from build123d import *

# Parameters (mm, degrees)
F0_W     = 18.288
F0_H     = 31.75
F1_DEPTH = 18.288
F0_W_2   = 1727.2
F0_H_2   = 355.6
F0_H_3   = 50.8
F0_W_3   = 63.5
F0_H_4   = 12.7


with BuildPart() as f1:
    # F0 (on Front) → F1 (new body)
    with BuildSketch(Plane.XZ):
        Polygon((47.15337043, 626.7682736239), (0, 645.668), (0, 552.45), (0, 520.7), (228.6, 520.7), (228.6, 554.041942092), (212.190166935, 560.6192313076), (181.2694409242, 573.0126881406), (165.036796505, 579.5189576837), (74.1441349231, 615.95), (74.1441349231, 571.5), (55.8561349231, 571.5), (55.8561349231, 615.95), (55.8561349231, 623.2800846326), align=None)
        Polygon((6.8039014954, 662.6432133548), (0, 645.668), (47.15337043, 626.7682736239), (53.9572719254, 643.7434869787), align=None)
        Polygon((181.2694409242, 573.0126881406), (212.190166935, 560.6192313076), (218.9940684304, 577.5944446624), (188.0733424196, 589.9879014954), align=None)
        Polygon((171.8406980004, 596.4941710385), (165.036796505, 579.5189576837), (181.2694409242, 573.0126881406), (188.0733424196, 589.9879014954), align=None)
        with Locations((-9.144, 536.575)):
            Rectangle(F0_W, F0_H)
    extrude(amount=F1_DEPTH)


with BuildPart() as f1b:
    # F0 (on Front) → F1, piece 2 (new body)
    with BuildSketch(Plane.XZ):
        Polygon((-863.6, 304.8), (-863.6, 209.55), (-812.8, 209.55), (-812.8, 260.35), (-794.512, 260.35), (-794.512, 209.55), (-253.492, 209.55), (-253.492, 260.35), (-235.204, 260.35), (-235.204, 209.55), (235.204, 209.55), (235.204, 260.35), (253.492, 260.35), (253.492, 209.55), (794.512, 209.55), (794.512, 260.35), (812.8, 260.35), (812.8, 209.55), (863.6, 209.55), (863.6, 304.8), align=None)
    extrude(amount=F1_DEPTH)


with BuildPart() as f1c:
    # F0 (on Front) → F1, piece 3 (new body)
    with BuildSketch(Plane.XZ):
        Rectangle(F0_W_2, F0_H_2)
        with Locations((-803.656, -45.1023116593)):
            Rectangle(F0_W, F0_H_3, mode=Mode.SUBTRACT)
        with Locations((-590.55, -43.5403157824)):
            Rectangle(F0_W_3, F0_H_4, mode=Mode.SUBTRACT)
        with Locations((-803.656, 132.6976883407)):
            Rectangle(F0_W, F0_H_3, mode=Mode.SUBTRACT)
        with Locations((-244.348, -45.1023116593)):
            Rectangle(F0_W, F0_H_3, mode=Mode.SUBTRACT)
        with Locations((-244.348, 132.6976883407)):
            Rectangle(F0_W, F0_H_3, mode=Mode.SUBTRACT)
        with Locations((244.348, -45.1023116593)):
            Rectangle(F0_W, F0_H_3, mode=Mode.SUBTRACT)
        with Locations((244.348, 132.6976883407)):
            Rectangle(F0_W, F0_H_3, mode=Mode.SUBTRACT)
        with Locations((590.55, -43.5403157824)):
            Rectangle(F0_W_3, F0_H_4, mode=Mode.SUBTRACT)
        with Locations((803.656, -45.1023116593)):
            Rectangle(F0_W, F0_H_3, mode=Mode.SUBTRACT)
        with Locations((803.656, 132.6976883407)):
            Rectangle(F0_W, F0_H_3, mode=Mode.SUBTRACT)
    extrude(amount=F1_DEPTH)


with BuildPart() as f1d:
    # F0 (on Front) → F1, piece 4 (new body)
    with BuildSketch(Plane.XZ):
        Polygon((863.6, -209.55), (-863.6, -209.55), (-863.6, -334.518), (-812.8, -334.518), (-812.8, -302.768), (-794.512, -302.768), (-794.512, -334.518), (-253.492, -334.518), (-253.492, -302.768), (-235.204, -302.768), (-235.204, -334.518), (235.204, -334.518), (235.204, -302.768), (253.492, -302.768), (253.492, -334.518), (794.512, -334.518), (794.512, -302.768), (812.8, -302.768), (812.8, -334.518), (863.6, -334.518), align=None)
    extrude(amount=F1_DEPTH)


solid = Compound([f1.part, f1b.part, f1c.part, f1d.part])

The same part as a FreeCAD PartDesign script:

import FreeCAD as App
import Part
import Sketcher
Q = App.Units.Quantity


def add_polygon(sketch, points):
    """Adds a closed chain of lines whose ends are joined by coincident constraints."""
    first, n = sketch.GeometryCount, len(points)
    for a, b in zip(points, points[1:] + points[:1]):
        sketch.addGeometry(Part.LineSegment(App.Vector(*a, 0), App.Vector(*b, 0)), False)
    for i in range(n):
        sketch.addConstraint(Sketcher.Constraint("Coincident", first + i, 2, first + (i + 1) % n, 1))

doc = App.newDocument("Part")
params = doc.addObject("Spreadsheet::Sheet", "Params")
for row, (alias, value) in enumerate([
    ("sketch1_length", "2 in"),
    ("sketch1_width", "0.72 in"),
    ("sketch1_height", "3.67 in"),
    ("sketch1_height2", "1.25 in"),
    ("sketch1_height3", "1.75 in"),
    ("pad1_length", "0.72 in"),
    ("sketch2_width", "2 in"),
    ("sketch2_width2", "68 in"),
    ("sketch2_width3", "21.3 in"),
    ("sketch2_width4", "0.72 in"),
    ("sketch2_height", "3.75 in"),
    ("pad2_length", "0.72 in"),
    ("sketch3_width", "68 in"),
    ("sketch3_height", "14 in"),
    ("sketch3_height2", "2 in"),
    ("sketch3_width2", "2.5 in"),
    ("sketch3_height3", "0.5 in"),
    ("pad3_length", "0.72 in"),
    ("sketch4_width", "68 in"),
    ("sketch4_width2", "2 in"),
    ("sketch4_width3", "21.3 in"),
    ("sketch4_width4", "0.72 in"),
    ("sketch4_height", "4.92 in"),
    ("pad4_length", "0.72 in"),
], start=1):
    params.set(f"A{row}", alias)
    params.set(f"B{row}", "=" + value)
    params.setAlias(f"B{row}", alias)

body = doc.addObject("PartDesign::Body", "Body")

# Sketch on XZ plane
sketch1 = body.newObject("Sketcher::SketchObject", "Sketch")
sketch1.AttachmentSupport = (doc.getObject("XZ_Plane"), [""])
sketch1.MapMode = "FlatFace"
add_polygon(sketch1, [(0, 646), (0, 552), (-18, 552), (-18, 521), (229, 521), (229, 554), (212, 561), (219, 578), (172, 596), (165, 580), (74, 616), (74, 572), (56, 572), (56, 623), (47, 627), (54, 644), (7, 663)])  # lines 0-16
sketch1.addConstraint(Sketcher.Constraint("Vertical", 0))
sketch1.addConstraint(Sketcher.Constraint("Horizontal", 1))
sketch1.addConstraint(Sketcher.Constraint("Vertical", 2))
sketch1.addConstraint(Sketcher.Constraint("Horizontal", 3))
sketch1.addConstraint(Sketcher.Constraint("Vertical", 4))
sketch1.addConstraint(Sketcher.Constraint("Vertical", 10))
sketch1.addConstraint(Sketcher.Constraint("Horizontal", 11))
sketch1.addConstraint(Sketcher.Constraint("Vertical", 12))
sketch1.addConstraint(Sketcher.Constraint("PointOnObject", 0, 2, -2))
sketch1.addConstraint(Sketcher.Constraint("Perpendicular", 5, 6))
sketch1.addConstraint(Sketcher.Constraint("Perpendicular", 6, 7))
sketch1.addConstraint(Sketcher.Constraint("Perpendicular", 7, 8))
sketch1.addConstraint(Sketcher.Constraint("Perpendicular", 8, 9))
sketch1.addConstraint(Sketcher.Constraint("Parallel", 9, 13))
sketch1.addConstraint(Sketcher.Constraint("Perpendicular", 13, 14))
sketch1.addConstraint(Sketcher.Constraint("Perpendicular", 14, 15))
sketch1.addConstraint(Sketcher.Constraint("Perpendicular", 15, 16))
sketch1.addConstraint(Sketcher.Constraint("Equal", 1, 11))
sketch1.addConstraint(Sketcher.Constraint("Equal", 6, 8))
sketch1.addConstraint(Sketcher.Constraint("Equal", 8, 14))
sketch1.addConstraint(Sketcher.Constraint("Equal", 7, 15))
sketch1.addConstraint(Sketcher.Constraint("Equal", 14, 16))
sketch1.addConstraint(Sketcher.Constraint("Distance", 7, Q("2 in")))
sketch1.addConstraint(Sketcher.Constraint("DistanceX", -1, 1, 3, 2, Q("9 in")))
sketch1.addConstraint(Sketcher.Constraint("DistanceY", 2, 2, 11, 2, Q("2 in")))
sketch1.addConstraint(Sketcher.Constraint("DistanceX", 1, 2, 1, 1, Q("0.72 in")))
sketch1.addConstraint(Sketcher.Constraint("DistanceY", 0, 2, 0, 1, Q("3.67 in")))
sketch1.addConstraint(Sketcher.Constraint("DistanceY", 2, 2, 2, 1, Q("1.25 in")))
sketch1.addConstraint(Sketcher.Constraint("DistanceY", 10, 2, 10, 1, Q("1.75 in")))
sketch1.addConstraint(Sketcher.Constraint("DistanceY", -1, 1, 2, 2, Q("20.5 in")))
sketch1.addConstraint(Sketcher.Constraint("Distance", 6, Q("0.72 in")))
sketch1.addConstraint(Sketcher.Constraint("DistanceX", -1, 1, 7, 2, Q("171.840698 mm")))
sketch1.addConstraint(Sketcher.Constraint("DistanceX", -1, 1, 15, 2, Q("6.803901 mm")))
sketch1.addConstraint(Sketcher.Constraint("Distance", 9, Q("97.921891 mm")))
sketch1.setExpression("Constraints[39]", "Params.sketch1_length")
sketch1.setExpression("Constraints[42]", "Params.sketch1_width")
sketch1.setExpression("Constraints[43]", "Params.sketch1_height")
sketch1.setExpression("Constraints[44]", "Params.sketch1_height2")
sketch1.setExpression("Constraints[45]", "Params.sketch1_height3")
pad1 = body.newObject("PartDesign::Pad", "Pad")
pad1.Profile = sketch1
pad1.setExpression("Length", "Params.pad1_length")
body2 = doc.addObject("PartDesign::Body", "Body001")

# Sketch on XZ plane
sketch2 = body2.newObject("Sketcher::SketchObject", "Sketch001")
sketch2.AttachmentSupport = (doc.getObject("XZ_Plane001"), [""])
sketch2.MapMode = "FlatFace"
add_polygon(sketch2, [(-864, 305), (-864, 210), (-813, 210), (-813, 260), (-795, 260), (-795, 210), (-253, 210), (-253, 260), (-235, 260), (-235, 210), (235, 210), (235, 260), (253, 260), (253, 210), (795, 210), (795, 260), (813, 260), (813, 210), (864, 210), (864, 305)])  # lines 0-19
sketch2.addConstraint(Sketcher.Constraint("Vertical", 0))
sketch2.addConstraint(Sketcher.Constraint("Horizontal", 1))
sketch2.addConstraint(Sketcher.Constraint("Vertical", 2))
sketch2.addConstraint(Sketcher.Constraint("Horizontal", 3))
sketch2.addConstraint(Sketcher.Constraint("Vertical", 4))
sketch2.addConstraint(Sketcher.Constraint("Horizontal", 5))
sketch2.addConstraint(Sketcher.Constraint("Vertical", 6))
sketch2.addConstraint(Sketcher.Constraint("Horizontal", 7))
sketch2.addConstraint(Sketcher.Constraint("Vertical", 8))
sketch2.addConstraint(Sketcher.Constraint("Horizontal", 9))
sketch2.addConstraint(Sketcher.Constraint("Vertical", 10))
sketch2.addConstraint(Sketcher.Constraint("Horizontal", 11))
sketch2.addConstraint(Sketcher.Constraint("Vertical", 12))
sketch2.addConstraint(Sketcher.Constraint("Horizontal", 13))
sketch2.addConstraint(Sketcher.Constraint("Vertical", 14))
sketch2.addConstraint(Sketcher.Constraint("Horizontal", 15))
sketch2.addConstraint(Sketcher.Constraint("Vertical", 16))
sketch2.addConstraint(Sketcher.Constraint("Horizontal", 17))
sketch2.addConstraint(Sketcher.Constraint("Vertical", 18))
sketch2.addConstraint(Sketcher.Constraint("Horizontal", 19))
sketch2.addConstraint(Sketcher.Constraint("Symmetric", 7, 2, 10, 2, -2))
sketch2.addConstraint(Sketcher.Constraint("Symmetric", 5, 2, 12, 2, -2))
sketch2.addConstraint(Sketcher.Constraint("Symmetric", 3, 2, 14, 2, -2))
sketch2.addConstraint(Sketcher.Constraint("Symmetric", 1, 2, 16, 2, -2))
sketch2.addConstraint(Sketcher.Constraint("Horizontal", 1, 2, 4, 2))
sketch2.addConstraint(Sketcher.Constraint("Horizontal", 3, 2, 6, 2))
sketch2.addConstraint(Sketcher.Constraint("Horizontal", 5, 2, 8, 2))
sketch2.addConstraint(Sketcher.Constraint("Equal", 3, 7))
sketch2.addConstraint(Sketcher.Constraint("Equal", 1, 17))
sketch2.addConstraint(Sketcher.Constraint("Equal", 17, 2))
sketch2.addConstraint(Sketcher.Constraint("DistanceX", 1, 1, 1, 2, Q("2 in")))
sketch2.addConstraint(Sketcher.Constraint("DistanceX", 19, 2, 19, 1, Q("68 in")))
sketch2.addConstraint(Sketcher.Constraint("DistanceX", 5, 1, 5, 2, Q("21.3 in")))
sketch2.addConstraint(Sketcher.Constraint("DistanceY", -1, 1, 18, 2, Q("12 in")))
sketch2.addConstraint(Sketcher.Constraint("DistanceX", 3, 1, 3, 2, Q("0.72 in")))
sketch2.addConstraint(Sketcher.Constraint("DistanceY", 0, 2, 0, 1, Q("3.75 in")))
sketch2.setExpression("Constraints[50]", "Params.sketch2_width")
sketch2.setExpression("Constraints[51]", "Params.sketch2_width2")
sketch2.setExpression("Constraints[52]", "Params.sketch2_width3")
sketch2.setExpression("Constraints[54]", "Params.sketch2_width4")
sketch2.setExpression("Constraints[55]", "Params.sketch2_height")
pad2 = body2.newObject("PartDesign::Pad", "Pad001")
pad2.Profile = sketch2
pad2.setExpression("Length", "Params.pad2_length")
body3 = doc.addObject("PartDesign::Body", "Body002")

# Sketch on XZ plane
sketch3 = body3.newObject("Sketcher::SketchObject", "Sketch002")
sketch3.AttachmentSupport = (doc.getObject("XZ_Plane002"), [""])
sketch3.MapMode = "FlatFace"
add_polygon(sketch3, [(-864, 178), (-864, -178), (864, -178), (864, 178)])  # lines 0-3
add_polygon(sketch3, [(-795, -71), (-813, -71), (-813, -20), (-795, -20)])  # lines 4-7
add_polygon(sketch3, [(-559, -50), (-622, -50), (-622, -37), (-559, -37)])  # lines 8-11
add_polygon(sketch3, [(-235, -71), (-253, -71), (-253, -20), (-235, -20)])  # lines 12-15
add_polygon(sketch3, [(253, -71), (235, -71), (235, -20), (253, -20)])  # lines 16-19
add_polygon(sketch3, [(622, -50), (559, -50), (559, -37), (622, -37)])  # lines 20-23
add_polygon(sketch3, [(813, -71), (795, -71), (795, -20), (813, -20)])  # lines 24-27
add_polygon(sketch3, [(-795, 107), (-813, 107), (-813, 158), (-795, 158)])  # lines 28-31
add_polygon(sketch3, [(-235, 107), (-253, 107), (-253, 158), (-235, 158)])  # lines 32-35
add_polygon(sketch3, [(253, 107), (235, 107), (235, 158), (253, 158)])  # lines 36-39
add_polygon(sketch3, [(813, 107), (795, 107), (795, 158), (813, 158)])  # lines 40-43
sketch3.addConstraint(Sketcher.Constraint("Vertical", 0))
sketch3.addConstraint(Sketcher.Constraint("Horizontal", 1))
sketch3.addConstraint(Sketcher.Constraint("Vertical", 2))
sketch3.addConstraint(Sketcher.Constraint("Horizontal", 3))
sketch3.addConstraint(Sketcher.Constraint("Horizontal", 4))
sketch3.addConstraint(Sketcher.Constraint("Vertical", 5))
sketch3.addConstraint(Sketcher.Constraint("Horizontal", 6))
sketch3.addConstraint(Sketcher.Constraint("Vertical", 7))
sketch3.addConstraint(Sketcher.Constraint("Horizontal", 8))
sketch3.addConstraint(Sketcher.Constraint("Vertical", 9))
sketch3.addConstraint(Sketcher.Constraint("Horizontal", 10))
sketch3.addConstraint(Sketcher.Constraint("Vertical", 11))
sketch3.addConstraint(Sketcher.Constraint("Horizontal", 12))
sketch3.addConstraint(Sketcher.Constraint("Vertical", 13))
sketch3.addConstraint(Sketcher.Constraint("Horizontal", 14))
sketch3.addConstraint(Sketcher.Constraint("Vertical", 15))
sketch3.addConstraint(Sketcher.Constraint("Horizontal", 16))
sketch3.addConstraint(Sketcher.Constraint("Vertical", 17))
sketch3.addConstraint(Sketcher.Constraint("Horizontal", 18))
sketch3.addConstraint(Sketcher.Constraint("Vertical", 19))
sketch3.addConstraint(Sketcher.Constraint("Horizontal", 20))
sketch3.addConstraint(Sketcher.Constraint("Vertical", 21))
sketch3.addConstraint(Sketcher.Constraint("Horizontal", 22))
sketch3.addConstraint(Sketcher.Constraint("Vertical", 23))
sketch3.addConstraint(Sketcher.Constraint("Horizontal", 24))
sketch3.addConstraint(Sketcher.Constraint("Vertical", 25))
sketch3.addConstraint(Sketcher.Constraint("Horizontal", 26))
sketch3.addConstraint(Sketcher.Constraint("Vertical", 27))
sketch3.addConstraint(Sketcher.Constraint("Horizontal", 28))
sketch3.addConstraint(Sketcher.Constraint("Vertical", 29))
sketch3.addConstraint(Sketcher.Constraint("Horizontal", 30))
sketch3.addConstraint(Sketcher.Constraint("Vertical", 31))
sketch3.addConstraint(Sketcher.Constraint("Horizontal", 32))
sketch3.addConstraint(Sketcher.Constraint("Vertical", 33))
sketch3.addConstraint(Sketcher.Constraint("Horizontal", 34))
sketch3.addConstraint(Sketcher.Constraint("Vertical", 35))
sketch3.addConstraint(Sketcher.Constraint("Horizontal", 36))
sketch3.addConstraint(Sketcher.Constraint("Vertical", 37))
sketch3.addConstraint(Sketcher.Constraint("Horizontal", 38))
sketch3.addConstraint(Sketcher.Constraint("Vertical", 39))
sketch3.addConstraint(Sketcher.Constraint("Horizontal", 40))
sketch3.addConstraint(Sketcher.Constraint("Vertical", 41))
sketch3.addConstraint(Sketcher.Constraint("Horizontal", 42))
sketch3.addConstraint(Sketcher.Constraint("Vertical", 43))
sketch3.addConstraint(Sketcher.Constraint("Symmetric", 0, 2, 2, 2, -1, 1))
sketch3.addConstraint(Sketcher.Constraint("Symmetric", 15, 2, 16, 2, -2))
sketch3.addConstraint(Sketcher.Constraint("Symmetric", 13, 2, 18, 2, -2))
sketch3.addConstraint(Sketcher.Constraint("Symmetric", 11, 2, 20, 2, -2))
sketch3.addConstraint(Sketcher.Constraint("Symmetric", 9, 2, 22, 2, -2))
sketch3.addConstraint(Sketcher.Constraint("Symmetric", 7, 2, 24, 2, -2))
sketch3.addConstraint(Sketcher.Constraint("Symmetric", 5, 2, 26, 2, -2))
sketch3.addConstraint(Sketcher.Constraint("Symmetric", 35, 2, 36, 2, -2))
sketch3.addConstraint(Sketcher.Constraint("Symmetric", 33, 2, 38, 2, -2))
sketch3.addConstraint(Sketcher.Constraint("Symmetric", 31, 2, 40, 2, -2))
sketch3.addConstraint(Sketcher.Constraint("Symmetric", 29, 2, 42, 2, -2))
sketch3.addConstraint(Sketcher.Constraint("Horizontal", 7, 2, 12, 2))
sketch3.addConstraint(Sketcher.Constraint("Horizontal", 6, 2, 13, 2))
sketch3.addConstraint(Sketcher.Constraint("Horizontal", 31, 2, 32, 2))
sketch3.addConstraint(Sketcher.Constraint("Horizontal", 30, 2, 33, 2))
sketch3.addConstraint(Sketcher.Constraint("Vertical", 5, 2, 28, 2))
sketch3.addConstraint(Sketcher.Constraint("Vertical", 7, 2, 30, 2))
sketch3.addConstraint(Sketcher.Constraint("Vertical", 13, 2, 32, 2))
sketch3.addConstraint(Sketcher.Constraint("Vertical", 15, 2, 34, 2))
sketch3.addConstraint(Sketcher.Constraint("Equal", 6, 12))
sketch3.addConstraint(Sketcher.Constraint("Equal", 27, 29))
sketch3.addConstraint(Sketcher.Constraint("DistanceX", 1, 1, 1, 2, Q("68 in")))
sketch3.addConstraint(Sketcher.Constraint("DistanceY", 0, 2, 0, 1, Q("14 in")))
sketch3.addConstraint(Sketcher.Constraint("DistanceY", 5, 1, 5, 2, Q("2 in")))
sketch3.addConstraint(Sketcher.Constraint("DistanceX", 8, 2, 8, 1, Q("2.5 in")))
sketch3.addConstraint(Sketcher.Constraint("DistanceY", 9, 1, 9, 2, Q("0.5 in")))
sketch3.addConstraint(Sketcher.Constraint("DistanceX", 4, 2, -1, 1, Q("32 in")))
sketch3.addConstraint(Sketcher.Constraint("DistanceX", 10, 2, -1, 1, Q("22 in")))
sketch3.addConstraint(Sketcher.Constraint("DistanceY", 5, 2, 28, 2, Q("5 in")))
sketch3.addConstraint(Sketcher.Constraint("DistanceX", 4, 2, 4, 1, Q("0.72 in")))
sketch3.addConstraint(Sketcher.Constraint("DistanceX", 7, 2, 12, 2, Q("21.3 in")))
sketch3.addConstraint(Sketcher.Constraint("DistanceY", 4, 2, -1, 1, Q("70.502312 mm")))
sketch3.addConstraint(Sketcher.Constraint("DistanceY", 8, 2, -1, 1, Q("49.890316 mm")))
sketch3.setExpression("Constraints[109]", "Params.sketch3_width")
sketch3.setExpression("Constraints[110]", "Params.sketch3_height")
sketch3.setExpression("Constraints[111]", "Params.sketch3_height2")
sketch3.setExpression("Constraints[112]", "Params.sketch3_width2")
sketch3.setExpression("Constraints[113]", "Params.sketch3_height3")
pad3 = body3.newObject("PartDesign::Pad", "Pad002")
pad3.Profile = sketch3
pad3.setExpression("Length", "Params.pad3_length")
body4 = doc.addObject("PartDesign::Body", "Body003")

# Sketch on XZ plane
sketch4 = body4.newObject("Sketcher::SketchObject", "Sketch003")
sketch4.AttachmentSupport = (doc.getObject("XZ_Plane003"), [""])
sketch4.MapMode = "FlatFace"
add_polygon(sketch4, [(864, -210), (-864, -210), (-864, -335), (-813, -335), (-813, -303), (-795, -303), (-795, -335), (-253, -335), (-253, -303), (-235, -303), (-235, -335), (235, -335), (235, -303), (253, -303), (253, -335), (795, -335), (795, -303), (813, -303), (813, -335), (864, -335)])  # lines 0-19
sketch4.addConstraint(Sketcher.Constraint("Horizontal", 0))
sketch4.addConstraint(Sketcher.Constraint("Vertical", 1))
sketch4.addConstraint(Sketcher.Constraint("Horizontal", 2))
sketch4.addConstraint(Sketcher.Constraint("Vertical", 3))
sketch4.addConstraint(Sketcher.Constraint("Horizontal", 4))
sketch4.addConstraint(Sketcher.Constraint("Vertical", 5))
sketch4.addConstraint(Sketcher.Constraint("Horizontal", 6))
sketch4.addConstraint(Sketcher.Constraint("Vertical", 7))
sketch4.addConstraint(Sketcher.Constraint("Horizontal", 8))
sketch4.addConstraint(Sketcher.Constraint("Vertical", 9))
sketch4.addConstraint(Sketcher.Constraint("Horizontal", 10))
sketch4.addConstraint(Sketcher.Constraint("Vertical", 11))
sketch4.addConstraint(Sketcher.Constraint("Horizontal", 12))
sketch4.addConstraint(Sketcher.Constraint("Vertical", 13))
sketch4.addConstraint(Sketcher.Constraint("Horizontal", 14))
sketch4.addConstraint(Sketcher.Constraint("Vertical", 15))
sketch4.addConstraint(Sketcher.Constraint("Horizontal", 16))
sketch4.addConstraint(Sketcher.Constraint("Vertical", 17))
sketch4.addConstraint(Sketcher.Constraint("Horizontal", 18))
sketch4.addConstraint(Sketcher.Constraint("Vertical", 19))
sketch4.addConstraint(Sketcher.Constraint("Symmetric", 8, 2, 11, 2, -2))
sketch4.addConstraint(Sketcher.Constraint("Symmetric", 6, 2, 13, 2, -2))
sketch4.addConstraint(Sketcher.Constraint("Symmetric", 4, 2, 15, 2, -2))
sketch4.addConstraint(Sketcher.Constraint("Symmetric", 2, 2, 17, 2, -2))
sketch4.addConstraint(Sketcher.Constraint("Horizontal", 2, 2, 5, 2))
sketch4.addConstraint(Sketcher.Constraint("Horizontal", 4, 2, 7, 2))
sketch4.addConstraint(Sketcher.Constraint("Horizontal", 6, 2, 9, 2))
sketch4.addConstraint(Sketcher.Constraint("Equal", 4, 8))
sketch4.addConstraint(Sketcher.Constraint("Equal", 2, 18))
sketch4.addConstraint(Sketcher.Constraint("DistanceX", 0, 2, 0, 1, Q("68 in")))
sketch4.addConstraint(Sketcher.Constraint("DistanceX", 2, 1, 2, 2, Q("2 in")))
sketch4.addConstraint(Sketcher.Constraint("DistanceX", 6, 1, 6, 2, Q("21.3 in")))
sketch4.addConstraint(Sketcher.Constraint("DistanceX", 4, 1, 4, 2, Q("0.72 in")))
sketch4.addConstraint(Sketcher.Constraint("DistanceY", 1, 2, 1, 1, Q("4.92 in")))
sketch4.addConstraint(Sketcher.Constraint("DistanceY", 3, 1, 3, 2, Q("1.25 in")))
sketch4.addConstraint(Sketcher.Constraint("DistanceY", 0, 2, -1, 1, Q("8.25 in")))
sketch4.setExpression("Constraints[49]", "Params.sketch4_width")
sketch4.setExpression("Constraints[50]", "Params.sketch4_width2")
sketch4.setExpression("Constraints[51]", "Params.sketch4_width3")
sketch4.setExpression("Constraints[52]", "Params.sketch4_width4")
sketch4.setExpression("Constraints[53]", "Params.sketch4_height")
pad4 = body4.newObject("PartDesign::Pad", "Pad003")
pad4.Profile = sketch4
pad4.setExpression("Length", "Params.pad4_length")

doc.recompute()
